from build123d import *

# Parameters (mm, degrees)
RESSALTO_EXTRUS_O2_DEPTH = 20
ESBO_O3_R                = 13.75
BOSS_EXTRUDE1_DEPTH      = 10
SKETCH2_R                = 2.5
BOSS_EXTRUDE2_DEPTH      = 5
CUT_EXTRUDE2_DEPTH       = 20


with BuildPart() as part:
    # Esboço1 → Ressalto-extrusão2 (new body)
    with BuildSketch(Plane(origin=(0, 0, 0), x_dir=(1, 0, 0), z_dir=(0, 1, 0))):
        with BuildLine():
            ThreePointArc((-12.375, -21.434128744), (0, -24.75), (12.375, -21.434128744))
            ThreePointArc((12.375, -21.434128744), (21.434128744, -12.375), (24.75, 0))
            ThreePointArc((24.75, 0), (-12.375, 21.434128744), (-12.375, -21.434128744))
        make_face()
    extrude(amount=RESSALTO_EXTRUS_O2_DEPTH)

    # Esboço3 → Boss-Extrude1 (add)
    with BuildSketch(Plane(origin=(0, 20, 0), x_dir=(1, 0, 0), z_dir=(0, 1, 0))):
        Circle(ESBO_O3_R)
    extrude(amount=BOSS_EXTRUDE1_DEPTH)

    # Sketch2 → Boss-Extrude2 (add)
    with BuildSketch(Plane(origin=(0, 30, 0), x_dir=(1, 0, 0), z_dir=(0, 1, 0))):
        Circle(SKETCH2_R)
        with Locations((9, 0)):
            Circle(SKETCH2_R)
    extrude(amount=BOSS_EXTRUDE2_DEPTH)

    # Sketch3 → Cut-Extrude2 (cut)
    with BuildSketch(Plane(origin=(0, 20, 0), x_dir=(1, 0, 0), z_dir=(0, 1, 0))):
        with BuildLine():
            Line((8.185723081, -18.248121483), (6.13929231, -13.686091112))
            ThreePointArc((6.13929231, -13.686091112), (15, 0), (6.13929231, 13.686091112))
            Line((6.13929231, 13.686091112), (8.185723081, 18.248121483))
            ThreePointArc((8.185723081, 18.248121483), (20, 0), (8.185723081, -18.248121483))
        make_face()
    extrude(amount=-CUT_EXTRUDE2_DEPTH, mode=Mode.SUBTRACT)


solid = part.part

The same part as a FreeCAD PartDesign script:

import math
import FreeCAD as App
import Part
import Sketcher
Q = App.Units.Quantity

doc = App.newDocument("Part")
body = doc.addObject("PartDesign::Body", "Body")

sketch1 = doc.addObject("Sketcher::SketchObject", "Sketch")
body.addObject(sketch1)
sketch1.AttachmentSupport = (doc.XZ_Plane, [""])
sketch1.MapMode = "FlatFace"
sketch1.addGeometry(Part.ArcOfCircle(Part.Circle(App.Vector(0, 0, 0), App.Vector(0, 0, 1), 25), math.radians(60), math.radians(120)), False)
sketch1.addGeometry(Part.ArcOfCircle(Part.Circle(App.Vector(0, 0, 0), App.Vector(0, 0, 1), 25), math.radians(0), math.radians(60)), False)
sketch1.addGeometry(Part.ArcOfCircle(Part.Circle(App.Vector(0, 0, 0), App.Vector(0, 0, 1), 25), math.radians(120), math.radians(360)), False)
sketch1.addConstraint(Sketcher.Constraint("Tangent", 0, 1, 1, 2))
sketch1.addConstraint(Sketcher.Constraint("Tangent", 1, 1, 2, 2))
sketch1.addConstraint(Sketcher.Constraint("Tangent", 2, 1, 0, 2))
sketch1.addConstraint(Sketcher.Constraint("Coincident", 0, 3, -1, 1))
sketch1.addConstraint(Sketcher.Constraint("PointOnObject", 1, 1, -1))
sketch1.addConstraint(Sketcher.Constraint("Horizontal", 0, 1, 2, 1))
sketch1.addConstraint(Sketcher.Constraint("Radius", 0, Q("24.75 mm")))
sketch1.addConstraint(Sketcher.Constraint("DistanceX", 2, 1, 0, 1, Q("24.75 mm")))
pad1 = doc.addObject("PartDesign::Pad", "Pad")
body.addObject(pad1)
pad1.Profile = sketch1
pad1.Length = 20
pad1.Reversed = True

sketch2 = doc.addObject("Sketcher::SketchObject", "Sketch001")
body.addObject(sketch2)
sketch2.AttachmentSupport = (doc.XZ_Plane, [""])
sketch2.MapMode = "FlatFace"
sketch2.AttachmentOffset = App.Placement(App.Vector(0, 0, -20), App.Rotation())
sketch2.addGeometry(Part.Circle(App.Vector(0, 0, 0), App.Vector(0, 0, 1), 14), False)
sketch2.addConstraint(Sketcher.Constraint("Coincident", 0, 3, -1, 1))
sketch2.addConstraint(Sketcher.Constraint("Diameter", 0, Q("27.5 mm")))
pad2 = doc.addObject("PartDesign::Pad", "Pad001")
body.addObject(pad2)
pad2.Profile = sketch2
pad2.Length = 10
pad2.Reversed = True

sketch3 = doc.addObject("Sketcher::SketchObject", "Sketch002")
body.addObject(sketch3)
sketch3.AttachmentSupport = (doc.XZ_Plane, [""])
sketch3.MapMode = "FlatFace"
sketch3.AttachmentOffset = App.Placement(App.Vector(0, 0, -30), App.Rotation())
sketch3.addGeometry(Part.Circle(App.Vector(0, 0, 0), App.Vector(0, 0, 1), 2.5), False)
sketch3.addGeometry(Part.Circle(App.Vector(9, 0, 0), App.Vector(0, 0, 1), 2.5), False)
sketch3.addConstraint(Sketcher.Constraint("Coincident", 0, 3, -1, 1))
sketch3.addConstraint(Sketcher.Constraint("Equal", 0, 1))
sketch3.addConstraint(Sketcher.Constraint("PointOnObject", 1, 3, -1))
sketch3.addConstraint(Sketcher.Constraint("Diameter", 0, Q("5 mm")))
sketch3.addConstraint(Sketcher.Constraint("DistanceX", -1, 1, 1, 3, Q("9 mm")))
pad3 = doc.addObject("PartDesign::Pad", "Pad002")
body.addObject(pad3)
pad3.Profile = sketch3
pad3.Length = 5
pad3.Reversed = True

sketch4 = doc.addObject("Sketcher::SketchObject", "Sketch003")
body.addObject(sketch4)
sketch4.AttachmentSupport = (doc.XZ_Plane, [""])
sketch4.MapMode = "FlatFace"
sketch4.AttachmentOffset = App.Placement(App.Vector(0, 0, -20), App.Rotation())
sketch4.addGeometry(Part.LineSegment(App.Vector(6, 14, 0), App.Vector(8, 18, 0)), False)
sketch4.addGeometry(Part.ArcOfCircle(Part.Circle(App.Vector(0, 0, 0), App.Vector(0, 0, 1), 20), math.radians(-66), math.radians(66)), False)
sketch4.addGeometry(Part.LineSegment(App.Vector(8, -18, 0), App.Vector(6, -14, 0)), False)
sketch4.addGeometry(Part.ArcOfCircle(Part.Circle(App.Vector(0, 0, 0), App.Vector(0, 0, 1), 15), math.radians(-66), math.radians(66)), False)
sketch4.addConstraint(Sketcher.Constraint("Coincident", 0, 2, 1, 2))
sketch4.addConstraint(Sketcher.Constraint("Coincident", 1, 1, 2, 1))
sketch4.addConstraint(Sketcher.Constraint("Coincident", 2, 2, 3, 1))
sketch4.addConstraint(Sketcher.Constraint("Coincident", 3, 2, 0, 1))
sketch4.addConstraint(Sketcher.Constraint("Coincident", 1, 3, -1, 1))
sketch4.addConstraint(Sketcher.Constraint("Coincident", 3, 3, -1, 1))
sketch4.addConstraint(Sketcher.Constraint("Vertical", 0, 2, 1, 1))
sketch4.addConstraint(Sketcher.Constraint("Vertical", 2, 2, 3, 2))
sketch4.addConstraint(Sketcher.Constraint("Radius", 1, Q("20 mm")))
sketch4.addConstraint(Sketcher.Constraint("Radius", 3, Q("15 mm")))
sketch4.addConstraint(Sketcher.Constraint("Angle", 0, Q("65.84 deg")))
sketch4.addConstraint(Sketcher.Constraint("DistanceY", -1, 1, 0, 2, Q("18.248121 mm")))
pocket1 = doc.addObject("PartDesign::Pocket", "Pocket")
body.addObject(pocket1)
pocket1.Profile = sketch4
pocket1.Length = 20
pocket1.Reversed = True

doc.recompute()
